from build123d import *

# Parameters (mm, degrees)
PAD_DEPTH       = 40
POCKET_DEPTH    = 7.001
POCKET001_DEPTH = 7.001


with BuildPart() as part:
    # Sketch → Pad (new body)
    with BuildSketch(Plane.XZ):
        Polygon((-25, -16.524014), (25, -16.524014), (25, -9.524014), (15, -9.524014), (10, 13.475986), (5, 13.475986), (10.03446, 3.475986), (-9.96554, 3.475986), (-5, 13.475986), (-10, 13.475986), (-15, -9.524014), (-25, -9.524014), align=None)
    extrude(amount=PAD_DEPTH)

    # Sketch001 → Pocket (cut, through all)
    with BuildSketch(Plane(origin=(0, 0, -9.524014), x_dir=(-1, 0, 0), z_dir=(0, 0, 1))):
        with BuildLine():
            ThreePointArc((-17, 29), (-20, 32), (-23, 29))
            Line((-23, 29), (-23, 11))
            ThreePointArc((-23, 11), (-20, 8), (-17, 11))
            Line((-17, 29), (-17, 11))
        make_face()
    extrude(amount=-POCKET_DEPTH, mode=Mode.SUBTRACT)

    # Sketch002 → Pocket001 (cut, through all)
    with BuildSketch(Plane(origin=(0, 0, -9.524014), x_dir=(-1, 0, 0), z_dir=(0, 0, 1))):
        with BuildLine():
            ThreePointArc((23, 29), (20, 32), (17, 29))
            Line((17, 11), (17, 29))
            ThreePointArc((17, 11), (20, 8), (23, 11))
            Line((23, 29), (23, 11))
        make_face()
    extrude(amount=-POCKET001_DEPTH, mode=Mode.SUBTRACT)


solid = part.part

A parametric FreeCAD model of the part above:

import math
import FreeCAD as App
import Part
import Sketcher
from FreeCAD import Vector

doc = App.newDocument("Part")
params = doc.addObject("Spreadsheet::Sheet", "Params")
for row, (alias, value) in enumerate([
    ("sketch1_width", "50 mm"),
    ("sketch1_width2", "10 mm"),
    ("sketch1_width3", "5 mm"),
    ("sketch1_width4", "20 mm"),
    ("sketch1_height", "7 mm"),
    ("pad1_length", "40 mm"),
    ("sketch2_radius", "3 mm"),
    ("sketch2_height", "18 mm"),
    ("sketch3_radius", "3 mm"),
    ("sketch3_height", "18 mm"),
], start=1):
    params.set(f"A{row}", alias)
    params.set(f"B{row}", "=" + value)
    params.setAlias(f"B{row}", alias)

body = doc.addObject("PartDesign::Body", "Body")

# Sketch on XZ plane
sketch1 = body.newObject("Sketcher::SketchObject", "Sketch")
sketch1.AttachmentSupport = (doc.getObject("XZ_Plane"), [""])
sketch1.MapMode = "FlatFace"
sketch1.addGeometry(Part.LineSegment(Vector(-25, -16.524014, 0), Vector(25, -16.524014, 0)), False)
sketch1.addGeometry(Part.LineSegment(Vector(25, -16.524014, 0), Vector(25, -9.524014, 0)), False)
sketch1.addGeometry(Part.LineSegment(Vector(25, -9.524014, 0), Vector(15, -9.524014, 0)), False)
sketch1.addGeometry(Part.LineSegment(Vector(15, -9.524014, 0), Vector(10, 13.475986, 0)), False)
sketch1.addGeometry(Part.LineSegment(Vector(10, 13.475986, 0), Vector(5, 13.475986, 0)), False)
sketch1.addGeometry(Part.LineSegment(Vector(5, 13.475986, 0), Vector(10.03446, 3.475986, 0)), False)
sketch1.addGeometry(Part.LineSegment(Vector(10.03446, 3.475986, 0), Vector(-9.96554, 3.475986, 0)), False)
sketch1.addGeometry(Part.LineSegment(Vector(-9.96554, 3.475986, 0), Vector(-5, 13.475986, 0)), False)
sketch1.addGeometry(Part.LineSegment(Vector(-5, 13.475986, 0), Vector(-10, 13.475986, 0)), False)
sketch1.addGeometry(Part.LineSegment(Vector(-10, 13.475986, 0), Vector(-15, -9.524014, 0)), False)
sketch1.addGeometry(Part.LineSegment(Vector(-15, -9.524014, 0), Vector(-25, -9.524014, 0)), False)
sketch1.addGeometry(Part.LineSegment(Vector(-25, -9.524014, 0), Vector(-25, -16.524014, 0)), False)
sketch1.addConstraint(Sketcher.Constraint("Coincident", 0, 2, 1, 1))
sketch1.addConstraint(Sketcher.Constraint("Coincident", 1, 2, 2, 1))
sketch1.addConstraint(Sketcher.Constraint("Coincident", 2, 2, 3, 1))
sketch1.addConstraint(Sketcher.Constraint("Coincident", 3, 2, 4, 1))
sketch1.addConstraint(Sketcher.Constraint("Coincident", 4, 2, 5, 1))
sketch1.addConstraint(Sketcher.Constraint("Coincident", 5, 2, 6, 1))
sketch1.addConstraint(Sketcher.Constraint("Coincident", 6, 2, 7, 1))
sketch1.addConstraint(Sketcher.Constraint("Coincident", 7, 2, 8, 1))
sketch1.addConstraint(Sketcher.Constraint("Coincident", 8, 2, 9, 1))
sketch1.addConstraint(Sketcher.Constraint("Coincident", 9, 2, 10, 1))
sketch1.addConstraint(Sketcher.Constraint("Coincident", 10, 2, 11, 1))
sketch1.addConstraint(Sketcher.Constraint("Coincident", 11, 2, 0, 1))
sketch1.addConstraint(Sketcher.Constraint("Horizontal", 0))
sketch1.addConstraint(Sketcher.Constraint("Vertical", 1))
sketch1.addConstraint(Sketcher.Constraint("Horizontal", 2))
sketch1.addConstraint(Sketcher.Constraint("Horizontal", 4))
sketch1.addConstraint(Sketcher.Constraint("Horizontal", 6))
sketch1.addConstraint(Sketcher.Constraint("Horizontal", 8))
sketch1.addConstraint(Sketcher.Constraint("Horizontal", 10))
sketch1.addConstraint(Sketcher.Constraint("Vertical", 11))
sketch1.addConstraint(Sketcher.Constraint("Symmetric", 4, 2, 7, 2, -2))
sketch1.addConstraint(Sketcher.Constraint("Symmetric", 2, 2, 9, 2, -2))
sketch1.addConstraint(Sketcher.Constraint("Equal", 4, 8))
sketch1.addConstraint(Sketcher.Constraint("Equal", 2, 10))
sketch1.addConstraint(Sketcher.Constraint("DistanceX", 0, 1, 0, 2, 50.0))
sketch1.addConstraint(Sketcher.Constraint("DistanceX", 2, 2, 2, 1, 10.0))
sketch1.addConstraint(Sketcher.Constraint("DistanceX", 4, 2, 4, 1, 5.0))
sketch1.addConstraint(Sketcher.Constraint("DistanceX", 6, 2, 6, 1, 20.0))
sketch1.addConstraint(Sketcher.Constraint("DistanceY", 1, 1, 1, 2, 7.0))
sketch1.addConstraint(Sketcher.Constraint("DistanceX", -1, 1, 3, 2, 10.0))
sketch1.addConstraint(Sketcher.Constraint("DistanceY", 2, 2, 3, 2, 23.0))
sketch1.addConstraint(Sketcher.Constraint("DistanceY", 5, 2, 3, 2, 10.0))
sketch1.addConstraint(Sketcher.Constraint("Distance", 7, 11.164971))
sketch1.addConstraint(Sketcher.Constraint("DistanceY", 0, 2, -1, 1, 16.524014))
sketch1.setExpression("Constraints[24]", "Params.sketch1_width")
sketch1.setExpression("Constraints[25]", "Params.sketch1_width2")
sketch1.setExpression("Constraints[26]", "Params.sketch1_width3")
sketch1.setExpression("Constraints[27]", "Params.sketch1_width4")
sketch1.setExpression("Constraints[28]", "Params.sketch1_height")
pad1 = body.newObject("PartDesign::Pad", "Pad")
pad1.Profile = sketch1
pad1.setExpression("Length", "Params.pad1_length")

# Sketch on XY plane
sketch2 = body.newObject("Sketcher::SketchObject", "Sketch001")
sketch2.AttachmentSupport = (doc.getObject("XY_Plane"), [""])
sketch2.MapMode = "FlatFace"
sketch2.AttachmentOffset = App.Placement(Vector(0, 0, -9.524014), App.Rotation())
sketch2.addGeometry(Part.ArcOfCircle(Part.Circle(Vector(20, -29, 0), Vector(0, 0, 1), 3), math.radians(180), math.radians(360)), False)
sketch2.addGeometry(Part.LineSegment(Vector(23, -29, 0), Vector(23, -11, 0)), False)
sketch2.addGeometry(Part.ArcOfCircle(Part.Circle(Vector(20, -11, 0), Vector(0, 0, 1), 3), math.radians(0), math.radians(180)), False)
sketch2.addGeometry(Part.LineSegment(Vector(17, -11, 0), Vector(17, -29, 0)), False)
sketch2.addConstraint(Sketcher.Constraint("Tangent", 0, 2, 1, 1))
sketch2.addConstraint(Sketcher.Constraint("Tangent", 1, 2, 2, 1))
sketch2.addConstraint(Sketcher.Constraint("Tangent", 2, 2, 3, 1))
sketch2.addConstraint(Sketcher.Constraint("Tangent", 3, 2, 0, 1))
sketch2.addConstraint(Sketcher.Constraint("Vertical", 1))
sketch2.addConstraint(Sketcher.Constraint("Vertical", 3))
sketch2.addConstraint(Sketcher.Constraint("Radius", 0, 3.0))
sketch2.addConstraint(Sketcher.Constraint("DistanceY", 1, 1, 1, 2, 18.0))
sketch2.addConstraint(Sketcher.Constraint("DistanceX", -1, 1, 0, 3, 20.0))
sketch2.addConstraint(Sketcher.Constraint("DistanceY", 0, 3, -1, 1, 29.0))
sketch2.setExpression("Constraints[6]", "Params.sketch2_radius")
sketch2.setExpression("Constraints[7]", "Params.sketch2_height")
pocket1 = body.newObject("PartDesign::Pocket", "Pocket")
pocket1.Profile = sketch2
pocket1.Type = "ThroughAll"

# Sketch on XY plane
sketch3 = body.newObject("Sketcher::SketchObject", "Sketch002")
sketch3.AttachmentSupport = (doc.getObject("XY_Plane"), [""])
sketch3.MapMode = "FlatFace"
sketch3.AttachmentOffset = App.Placement(Vector(0, 0, -9.524014), App.Rotation())
sketch3.addGeometry(Part.ArcOfCircle(Part.Circle(Vector(-20, -29, 0), Vector(0, 0, 1), 3), math.radians(180), math.radians(360)), False)
sketch3.addGeometry(Part.LineSegment(Vector(-17, -29, 0), Vector(-17, -11, 0)), False)
sketch3.addGeometry(Part.ArcOfCircle(Part.Circle(Vector(-20, -11, 0), Vector(0, 0, 1), 3), math.radians(0), math.radians(180)), False)
sketch3.addGeometry(Part.LineSegment(Vector(-23, -11, 0), Vector(-23, -29, 0)), False)
sketch3.addConstraint(Sketcher.Constraint("Tangent", 0, 2, 1, 1))
sketch3.addConstraint(Sketcher.Constraint("Tangent", 1, 2, 2, 1))
sketch3.addConstraint(Sketcher.Constraint("Tangent", 2, 2, 3, 1))
sketch3.addConstraint(Sketcher.Constraint("Tangent", 3, 2, 0, 1))
sketch3.addConstraint(Sketcher.Constraint("Vertical", 1))
sketch3.addConstraint(Sketcher.Constraint("Vertical", 3))
sketch3.addConstraint(Sketcher.Constraint("Radius", 0, 3.0))
sketch3.addConstraint(Sketcher.Constraint("DistanceY", 1, 1, 1, 2, 18.0))
sketch3.addConstraint(Sketcher.Constraint("DistanceX", 0, 3, -1, 1, 20.0))
sketch3.addConstraint(Sketcher.Constraint("DistanceY", 0, 3, -1, 1, 29.0))
sketch3.setExpression("Constraints[6]", "Params.sketch3_radius")
sketch3.setExpression("Constraints[7]", "Params.sketch3_height")
pocket2 = body.newObject("PartDesign::Pocket", "Pocket001")
pocket2.Profile = sketch3
pocket2.Type = "ThroughAll"

doc.recompute()
